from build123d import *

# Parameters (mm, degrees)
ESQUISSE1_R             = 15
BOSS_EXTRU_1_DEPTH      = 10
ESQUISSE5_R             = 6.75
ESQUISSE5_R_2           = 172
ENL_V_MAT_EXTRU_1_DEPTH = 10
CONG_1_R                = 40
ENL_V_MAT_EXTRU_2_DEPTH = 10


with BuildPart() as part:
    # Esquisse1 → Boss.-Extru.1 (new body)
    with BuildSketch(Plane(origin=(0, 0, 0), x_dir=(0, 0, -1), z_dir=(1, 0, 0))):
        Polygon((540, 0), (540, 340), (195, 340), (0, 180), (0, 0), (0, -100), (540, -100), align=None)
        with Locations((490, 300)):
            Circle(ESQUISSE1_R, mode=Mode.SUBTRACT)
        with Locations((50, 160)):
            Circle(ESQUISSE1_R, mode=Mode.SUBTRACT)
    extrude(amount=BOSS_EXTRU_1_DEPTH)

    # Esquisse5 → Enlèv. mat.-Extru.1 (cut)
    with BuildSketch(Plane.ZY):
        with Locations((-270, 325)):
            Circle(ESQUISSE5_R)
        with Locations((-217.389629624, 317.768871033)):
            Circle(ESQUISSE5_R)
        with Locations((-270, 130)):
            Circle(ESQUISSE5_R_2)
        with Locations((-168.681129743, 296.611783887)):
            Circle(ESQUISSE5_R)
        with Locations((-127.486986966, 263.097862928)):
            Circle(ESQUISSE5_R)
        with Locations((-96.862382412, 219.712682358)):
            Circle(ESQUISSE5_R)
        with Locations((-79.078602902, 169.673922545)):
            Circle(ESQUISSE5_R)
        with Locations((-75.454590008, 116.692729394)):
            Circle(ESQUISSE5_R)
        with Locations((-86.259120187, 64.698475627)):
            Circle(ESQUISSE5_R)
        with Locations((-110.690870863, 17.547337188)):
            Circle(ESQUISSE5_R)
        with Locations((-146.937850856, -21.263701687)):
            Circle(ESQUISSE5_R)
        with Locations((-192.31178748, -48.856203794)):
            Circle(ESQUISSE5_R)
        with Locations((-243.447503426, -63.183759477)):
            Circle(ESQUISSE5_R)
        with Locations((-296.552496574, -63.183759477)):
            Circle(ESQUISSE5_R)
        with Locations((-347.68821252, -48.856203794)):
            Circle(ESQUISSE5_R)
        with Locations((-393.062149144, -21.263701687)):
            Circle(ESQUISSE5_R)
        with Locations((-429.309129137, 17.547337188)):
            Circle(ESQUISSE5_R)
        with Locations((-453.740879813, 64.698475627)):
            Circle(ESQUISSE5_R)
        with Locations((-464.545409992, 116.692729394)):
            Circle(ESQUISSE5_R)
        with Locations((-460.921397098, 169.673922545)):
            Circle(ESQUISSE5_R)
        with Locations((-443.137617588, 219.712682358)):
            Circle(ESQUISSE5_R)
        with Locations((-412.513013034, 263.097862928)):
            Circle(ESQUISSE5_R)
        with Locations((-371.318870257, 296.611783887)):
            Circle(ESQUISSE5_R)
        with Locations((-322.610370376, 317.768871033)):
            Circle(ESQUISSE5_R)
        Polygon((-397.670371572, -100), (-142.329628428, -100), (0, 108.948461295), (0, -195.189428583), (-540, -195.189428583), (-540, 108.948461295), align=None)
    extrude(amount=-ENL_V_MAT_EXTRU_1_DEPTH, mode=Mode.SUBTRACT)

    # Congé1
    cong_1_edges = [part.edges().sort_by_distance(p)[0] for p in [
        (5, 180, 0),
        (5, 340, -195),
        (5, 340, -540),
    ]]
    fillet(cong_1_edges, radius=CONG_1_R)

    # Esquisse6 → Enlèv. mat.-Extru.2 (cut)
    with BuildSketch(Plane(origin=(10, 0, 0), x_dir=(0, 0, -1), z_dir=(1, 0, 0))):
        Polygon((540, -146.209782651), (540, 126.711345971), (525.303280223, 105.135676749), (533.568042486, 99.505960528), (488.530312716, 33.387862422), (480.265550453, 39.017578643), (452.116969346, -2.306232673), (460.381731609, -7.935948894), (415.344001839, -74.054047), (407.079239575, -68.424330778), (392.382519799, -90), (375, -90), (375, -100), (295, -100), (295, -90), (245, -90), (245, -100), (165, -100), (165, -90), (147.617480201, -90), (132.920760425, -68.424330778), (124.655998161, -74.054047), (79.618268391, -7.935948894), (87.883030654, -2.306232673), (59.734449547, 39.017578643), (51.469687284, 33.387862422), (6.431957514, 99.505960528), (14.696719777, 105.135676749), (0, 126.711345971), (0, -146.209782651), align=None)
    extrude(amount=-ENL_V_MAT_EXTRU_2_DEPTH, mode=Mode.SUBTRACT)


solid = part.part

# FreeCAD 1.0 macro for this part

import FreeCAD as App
import Part
import Sketcher
Q = App.Units.Quantity


def edges_at(feature, points):
    """Names of the edges that pass closest to the given points."""
    edges = feature.Shape.Edges
    near = lambda p: min(range(len(edges)), key=lambda i: edges[i].distToShape(Part.Vertex(*p))[0])
    return sorted({f"Edge{near(p) + 1}" for p in points})


def add_polygon(sketch, points):
    """Adds a closed chain of lines whose ends are joined by coincident constraints."""
    first, n = sketch.GeometryCount, len(points)
    for a, b in zip(points, points[1:] + points[:1]):
        sketch.addGeometry(Part.LineSegment(App.Vector(*a, 0), App.Vector(*b, 0)), False)
    for i in range(n):
        sketch.addConstraint(Sketcher.Constraint("Coincident", first + i, 2, first + (i + 1) % n, 1))

doc = App.newDocument("Part")
body = doc.addObject("PartDesign::Body", "Body")

sketch1 = body.newObject("Sketcher::SketchObject", "Sketch")
sketch1.AttachmentSupport = (doc.getObject("YZ_Plane"), [""])
sketch1.MapMode = "FlatFace"
add_polygon(sketch1, [(340, -540), (340, -195), (180, 0), (-100, 0), (-100, -540)])
sketch1.addGeometry(Part.Circle(App.Vector(160, -50, 0), App.Vector(0, 0, 1), 15), False)
sketch1.addGeometry(Part.Circle(App.Vector(300, -490, 0), App.Vector(0, 0, 1), 15), False)
sketch1.addConstraint(Sketcher.Constraint("Vertical", 0))
sketch1.addConstraint(Sketcher.Constraint("Horizontal", 2))
sketch1.addConstraint(Sketcher.Constraint("Vertical", 3))
sketch1.addConstraint(Sketcher.Constraint("Horizontal", 4))
sketch1.addConstraint(Sketcher.Constraint("Equal", 5, 6))
sketch1.addConstraint(Sketcher.Constraint("PointOnObject", 1, 2, -1))
sketch1.addConstraint(Sketcher.Constraint("Diameter", 5, Q("30 mm")))
sketch1.addConstraint(Sketcher.Constraint("DistanceX", 2, 2, 2, 1, Q("280 mm")))
sketch1.addConstraint(Sketcher.Constraint("DistanceX", 4, 1, 4, 2, Q("440 mm")))
sketch1.addConstraint(Sketcher.Constraint("DistanceY", 0, 1, 0, 2, Q("345 mm")))
sketch1.addConstraint(Sketcher.Constraint("DistanceY", 3, 2, 3, 1, Q("540 mm")))
sketch1.addConstraint(Sketcher.Constraint("DistanceX", -1, 1, 5, 3, Q("160 mm")))
sketch1.addConstraint(Sketcher.Constraint("DistanceY", 5, 3, -1, 1, Q("50 mm")))
sketch1.addConstraint(Sketcher.Constraint("DistanceX", -1, 1, 6, 3, Q("300 mm")))
sketch1.addConstraint(Sketcher.Constraint("DistanceY", 6, 3, -1, 1, Q("490 mm")))
sketch1.addConstraint(Sketcher.Constraint("DistanceX", -1, 1, 0, 2, Q("340 mm")))
pad1 = body.newObject("PartDesign::Pad", "Pad")
pad1.Profile = sketch1
pad1.Length = 10

sketch2 = body.newObject("Sketcher::SketchObject", "Sketch001")
sketch2.AttachmentSupport = (doc.getObject("YZ_Plane"), [""])
sketch2.MapMode = "FlatFace"
sketch2.addGeometry(Part.Circle(App.Vector(325, -270, 0), App.Vector(0, 0, 1), 6.75), False)
sketch2.addGeometry(Part.Circle(App.Vector(317.768871, -217.38963, 0), App.Vector(0, 0, 1), 6.75), False)
sketch2.addGeometry(Part.Circle(App.Vector(130, -270, 0), App.Vector(0, 0, 1), 172), False)
sketch2.addGeometry(Part.Circle(App.Vector(296.611784, -168.68113, 0), App.Vector(0, 0, 1), 6.75), False)
sketch2.addGeometry(Part.Circle(App.Vector(263.097863, -127.486987, 0), App.Vector(0, 0, 1), 6.75), False)
sketch2.addGeometry(Part.Circle(App.Vector(219.712682, -96.862382, 0), App.Vector(0, 0, 1), 6.75), False)
sketch2.addGeometry(Part.Circle(App.Vector(169.673923, -79.078603, 0), App.Vector(0, 0, 1), 6.75), False)
sketch2.addGeometry(Part.Circle(App.Vector(116.692729, -75.45459, 0), App.Vector(0, 0, 1), 6.75), False)
sketch2.addGeometry(Part.Circle(App.Vector(64.698476, -86.25912, 0), App.Vector(0, 0, 1), 6.75), False)
sketch2.addGeometry(Part.Circle(App.Vector(17.547337, -110.690871, 0), App.Vector(0, 0, 1), 6.75), False)
sketch2.addGeometry(Part.Circle(App.Vector(-21.263702, -146.937851, 0), App.Vector(0, 0, 1), 6.75), False)
sketch2.addGeometry(Part.Circle(App.Vector(-48.856204, -192.311787, 0), App.Vector(0, 0, 1), 6.75), False)
sketch2.addGeometry(Part.Circle(App.Vector(-63.183759, -243.447503, 0), App.Vector(0, 0, 1), 6.75), False)
sketch2.addGeometry(Part.Circle(App.Vector(-63.183759, -296.552497, 0), App.Vector(0, 0, 1), 6.75), False)
sketch2.addGeometry(Part.Circle(App.Vector(-48.856204, -347.688213, 0), App.Vector(0, 0, 1), 6.75), False)
sketch2.addGeometry(Part.Circle(App.Vector(-21.263702, -393.062149, 0), App.Vector(0, 0, 1), 6.75), False)
sketch2.addGeometry(Part.Circle(App.Vector(17.547337, -429.309129, 0), App.Vector(0, 0, 1), 6.75), False)
sketch2.addGeometry(Part.Circle(App.Vector(64.698476, -453.74088, 0), App.Vector(0, 0, 1), 6.75), False)
sketch2.addGeometry(Part.Circle(App.Vector(116.692729, -464.54541, 0), App.Vector(0, 0, 1), 6.75), False)
sketch2.addGeometry(Part.Circle(App.Vector(169.673923, -460.921397, 0), App.Vector(0, 0, 1), 6.75), False)
sketch2.addGeometry(Part.Circle(App.Vector(219.712682, -443.137618, 0), App.Vector(0, 0, 1), 6.75), False)
sketch2.addGeometry(Part.Circle(App.Vector(263.097863, -412.513013, 0), App.Vector(0, 0, 1), 6.75), False)
sketch2.addGeometry(Part.Circle(App.Vector(296.611784, -371.31887, 0), App.Vector(0, 0, 1), 6.75), False)
sketch2.addGeometry(Part.Circle(App.Vector(317.768871, -322.61037, 0), App.Vector(0, 0, 1), 6.75), False)
add_polygon(sketch2, [(-100, -142.329628), (-100, -397.670372), (108.948461, -540), (-195.189429, -540), (-195.189429, 0), (108.948461, 0)])
sketch2.addConstraint(Sketcher.Constraint("Vertical", 24))
sketch2.addConstraint(Sketcher.Constraint("Horizontal", 26))
sketch2.addConstraint(Sketcher.Constraint("Vertical", 27))
sketch2.addConstraint(Sketcher.Constraint("Horizontal", 28))
sketch2.addConstraint(Sketcher.Constraint("Equal", 0, 1))
sketch2.addConstraint(Sketcher.Constraint("Equal", 1, 3))
sketch2.addConstraint(Sketcher.Constraint("Equal", 3, 4))
sketch2.addConstraint(Sketcher.Constraint("Equal", 4, 5))
sketch2.addConstraint(Sketcher.Constraint("Equal", 5, 6))
sketch2.addConstraint(Sketcher.Constraint("Equal", 6, 7))
sketch2.addConstraint(Sketcher.Constraint("Equal", 7, 8))
sketch2.addConstraint(Sketcher.Constraint("Equal", 8, 9))
sketch2.addConstraint(Sketcher.Constraint("Equal", 9, 10))
sketch2.addConstraint(Sketcher.Constraint("Equal", 10, 11))
sketch2.addConstraint(Sketcher.Constraint("Equal", 11, 12))
sketch2.addConstraint(Sketcher.Constraint("Equal", 12, 13))
sketch2.addConstraint(Sketcher.Constraint("Equal", 13, 14))
sketch2.addConstraint(Sketcher.Constraint("Equal", 14, 15))
sketch2.addConstraint(Sketcher.Constraint("Equal", 15, 16))
sketch2.addConstraint(Sketcher.Constraint("Equal", 16, 17))
sketch2.addConstraint(Sketcher.Constraint("Equal", 17, 18))
sketch2.addConstraint(Sketcher.Constraint("Equal", 18, 19))
sketch2.addConstraint(Sketcher.Constraint("Equal", 19, 20))
sketch2.addConstraint(Sketcher.Constraint("Equal", 20, 21))
sketch2.addConstraint(Sketcher.Constraint("Equal", 21, 22))
sketch2.addConstraint(Sketcher.Constraint("Equal", 22, 23))
sketch2.addConstraint(Sketcher.Constraint("PointOnObject", 27, 2, -1))
sketch2.addConstraint(Sketcher.Constraint("Horizontal", 0, 3, 2, 3))
sketch2.addConstraint(Sketcher.Constraint("Vertical", 12, 3, 13, 3))
sketch2.addConstraint(Sketcher.Constraint("Vertical", 11, 3, 14, 3))
sketch2.addConstraint(Sketcher.Constraint("Vertical", 10, 3, 15, 3))
sketch2.addConstraint(Sketcher.Constraint("Vertical", 9, 3, 16, 3))
sketch2.addConstraint(Sketcher.Constraint("Vertical", 8, 3, 17, 3))
sketch2.addConstraint(Sketcher.Constraint("Vertical", 7, 3, 18, 3))
sketch2.addConstraint(Sketcher.Constraint("Vertical", 6, 3, 19, 3))
sketch2.addConstraint(Sketcher.Constraint("Vertical", 5, 3, 20, 3))
sketch2.addConstraint(Sketcher.Constraint("Vertical", 4, 3, 21, 3))
sketch2.addConstraint(Sketcher.Constraint("Vertical", 3, 3, 22, 3))
sketch2.addConstraint(Sketcher.Constraint("Vertical", 1, 3, 23, 3))
sketch2.addConstraint(Sketcher.Constraint("Vertical", 25, 2, 28, 2))
sketch2.addConstraint(Sketcher.Constraint("Equal", 25, 29))
sketch2.addConstraint(Sketcher.Constraint("Diameter", 2, Q("344 mm")))
sketch2.addConstraint(Sketcher.Constraint("Diameter", 0, Q("13.5 mm")))
sketch2.addConstraint(Sketcher.Constraint("DistanceY", 27, 1, 27, 2, Q("540 mm")))
sketch2.addConstraint(Sketcher.Constraint("DistanceX", -1, 1, 0, 3, Q("325 mm")))
sketch2.addConstraint(Sketcher.Constraint("DistanceY", 0, 3, -1, 1, Q("270 mm")))
sketch2.addConstraint(Sketcher.Constraint("DistanceX", -1, 1, 2, 3, Q("130 mm")))
sketch2.addConstraint(Sketcher.Constraint("DistanceX", 24, 2, -1, 1, Q("100 mm")))
sketch2.addConstraint(Sketcher.Constraint("DistanceX", 26, 2, 26, 1, Q("304.13789 mm")))
sketch2.addConstraint(Sketcher.Constraint("DistanceX", 10, 3, -1, 1, Q("21.263702 mm")))
sketch2.addConstraint(Sketcher.Constraint("DistanceY", 1, 3, 3, 3, Q("48.7085 mm")))
sketch2.addConstraint(Sketcher.Constraint("DistanceX", 5, 3, 3, 3, Q("76.899102 mm")))
sketch2.addConstraint(Sketcher.Constraint("DistanceY", 22, 3, 23, 3, Q("48.7085 mm")))
sketch2.addConstraint(Sketcher.Constraint("DistanceY", 24, 2, 24, 1, Q("255.340743 mm")))
sketch2.addConstraint(Sketcher.Constraint("DistanceX", -1, 1, 1, 3, Q("317.768871 mm")))
sketch2.addConstraint(Sketcher.Constraint("DistanceY", 1, 3, -1, 1, Q("217.38963 mm")))
sketch2.addConstraint(Sketcher.Constraint("DistanceX", -1, 1, 7, 3, Q("116.692729 mm")))
sketch2.addConstraint(Sketcher.Constraint("DistanceY", 7, 3, -1, 1, Q("75.45459 mm")))
sketch2.addConstraint(Sketcher.Constraint("DistanceY", 8, 3, -1, 1, Q("86.25912 mm")))
sketch2.addConstraint(Sketcher.Constraint("DistanceY", 9, 3, -1, 1, Q("110.690871 mm")))
sketch2.addConstraint(Sketcher.Constraint("DistanceY", 10, 3, -1, 1, Q("146.937851 mm")))
sketch2.addConstraint(Sketcher.Constraint("DistanceX", 12, 3, -1, 1, Q("63.183759 mm")))
sketch2.addConstraint(Sketcher.Constraint("DistanceY", 15, 3, -1, 1, Q("393.062149 mm")))
sketch2.addConstraint(Sketcher.Constraint("DistanceY", 16, 3, -1, 1, Q("429.309129 mm")))
sketch2.addConstraint(Sketcher.Constraint("DistanceY", 17, 3, -1, 1, Q("453.74088 mm")))
sketch2.addConstraint(Sketcher.Constraint("DistanceY", 18, 3, -1, 1, Q("464.54541 mm")))
sketch2.addConstraint(Sketcher.Constraint("DistanceY", 22, 3, -1, 1, Q("371.31887 mm")))
sketch2.addConstraint(Sketcher.Constraint("DistanceX", -1, 1, 25, 2, Q("108.948461 mm")))
sketch2.addConstraint(Sketcher.Constraint("DistanceX", 4, 3, 3, 3, Q("33.513921 mm")))
sketch2.addConstraint(Sketcher.Constraint("DistanceX", 4, 3, 1, 3, Q("54.671008 mm")))
sketch2.addConstraint(Sketcher.Constraint("DistanceX", 6, 3, 5, 3, Q("50.03876 mm")))
sketch2.addConstraint(Sketcher.Constraint("DistanceY", 5, 3, 6, 3, Q("17.78378 mm")))
sketch2.addConstraint(Sketcher.Constraint("DistanceX", 9, 3, 8, 3, Q("47.151138 mm")))
sketch2.addConstraint(Sketcher.Constraint("DistanceY", 9, 3, 5, 3, Q("13.828488 mm")))
sketch2.addConstraint(Sketcher.Constraint("DistanceX", 10, 3, 9, 3, Q("38.811039 mm")))
sketch2.addConstraint(Sketcher.Constraint("DistanceX", 11, 3, 9, 3, Q("66.403541 mm")))
sketch2.addConstraint(Sketcher.Constraint("DistanceY", 13, 3, 11, 3, Q("104.240709 mm")))
sketch2.addConstraint(Sketcher.Constraint("DistanceY", 14, 3, 12, 3, Q("104.240709 mm")))
sketch2.addConstraint(Sketcher.Constraint("DistanceY", 14, 3, 10, 3, Q("200.750362 mm")))
sketch2.addConstraint(Sketcher.Constraint("DistanceY", 15, 3, 11, 3, Q("200.750362 mm")))
sketch2.addConstraint(Sketcher.Constraint("DistanceY", 19, 3, 20, 3, Q("17.78378 mm")))
sketch2.addConstraint(Sketcher.Constraint("DistanceY", 4, 3, -1, 1, Q("127.486987 mm")))
sketch2.addConstraint(Sketcher.Constraint("DistanceY", 19, 3, -1, 1, Q("460.921397 mm")))
sketch2.addConstraint(Sketcher.Constraint("DistanceY", 21, 3, -1, 1, Q("412.513013 mm")))
pocket1 = body.newObject("PartDesign::Pocket", "Pocket")
pocket1.Profile = sketch2
pocket1.Length = 10
pocket1.Reversed = True
doc.recompute()

fillet = body.newObject("PartDesign::Fillet", "Fillet")
fillet.Base = (pocket1, edges_at(pocket1, [(5, 180, 0), (5, 340, -195), (5, 340, -540)]))
fillet.Radius = 40

sketch3 = body.newObject("Sketcher::SketchObject", "Sketch002")
sketch3.AttachmentSupport = (doc.getObject("YZ_Plane"), [""])
sketch3.MapMode = "FlatFace"
sketch3.AttachmentOffset = App.Placement(App.Vector(0, 0, 10), App.Rotation())
add_polygon(sketch3, [(-146.209783, -540), (126.711346, -540), (105.135677, -525.30328), (99.505961, -533.568042), (33.387862, -488.530313), (39.017579, -480.26555), (-2.306233, -452.116969), (-7.935949, -460.381732), (-74.054047, -415.344002), (-68.424331, -407.07924), (-90, -392.38252), (-90, -375), (-100, -375), (-100, -295), (-90, -295), (-90, -245), (-100, -245), (-100, -165), (-90, -165), (-90, -147.61748), (-68.424331, -132.92076), (-74.054047, -124.655998), (-7.935949, -79.618268), (-2.306233, -87.883031), (39.017579, -59.73445), (33.387862, -51.469687), (99.505961, -6.431958), (105.135677, -14.69672), (126.711346, 0), (-146.209783, 0)])
sketch3.addConstraint(Sketcher.Constraint("Horizontal", 0))
sketch3.addConstraint(Sketcher.Constraint("Vertical", 10))
sketch3.addConstraint(Sketcher.Constraint("Horizontal", 11))
sketch3.addConstraint(Sketcher.Constraint("Vertical", 12))
sketch3.addConstraint(Sketcher.Constraint("Horizontal", 13))
sketch3.addConstraint(Sketcher.Constraint("Vertical", 14))
sketch3.addConstraint(Sketcher.Constraint("Horizontal", 15))
sketch3.addConstraint(Sketcher.Constraint("Vertical", 16))
sketch3.addConstraint(Sketcher.Constraint("Horizontal", 17))
sketch3.addConstraint(Sketcher.Constraint("Vertical", 18))
sketch3.addConstraint(Sketcher.Constraint("Horizontal", 28))
sketch3.addConstraint(Sketcher.Constraint("Vertical", 29))
sketch3.addConstraint(Sketcher.Constraint("PointOnObject", 27, 2, -1))
sketch3.addConstraint(Sketcher.Constraint("Perpendicular", 1, 2))
sketch3.addConstraint(Sketcher.Constraint("Perpendicular", 2, 3))
sketch3.addConstraint(Sketcher.Constraint("Perpendicular", 3, 4))
sketch3.addConstraint(Sketcher.Constraint("Perpendicular", 4, 5))
sketch3.addConstraint(Sketcher.Constraint("Perpendicular", 5, 6))
sketch3.addConstraint(Sketcher.Constraint("Perpendicular", 6, 7))
sketch3.addConstraint(Sketcher.Constraint("Perpendicular", 7, 8))
sketch3.addConstraint(Sketcher.Constraint("Perpendicular", 8, 9))
sketch3.addConstraint(Sketcher.Constraint("Perpendicular", 19, 20))
sketch3.addConstraint(Sketcher.Constraint("Perpendicular", 20, 21))
sketch3.addConstraint(Sketcher.Constraint("Perpendicular", 21, 22))
sketch3.addConstraint(Sketcher.Constraint("Perpendicular", 22, 23))
sketch3.addConstraint(Sketcher.Constraint("Perpendicular", 23, 24))
sketch3.addConstraint(Sketcher.Constraint("Perpendicular", 24, 25))
sketch3.addConstraint(Sketcher.Constraint("Perpendicular", 25, 26))
sketch3.addConstraint(Sketcher.Constraint("Perpendicular", 26, 27))
sketch3.addConstraint(Sketcher.Constraint("Vertical", 10, 2, 13, 2))
sketch3.addConstraint(Sketcher.Constraint("Vertical", 12, 2, 15, 2))
sketch3.addConstraint(Sketcher.Constraint("Vertical", 14, 2, 17, 2))
sketch3.addConstraint(Sketcher.Constraint("Vertical", 8, 2, 19, 2))
sketch3.addConstraint(Sketcher.Constraint("Vertical", 7, 2, 20, 2))
sketch3.addConstraint(Sketcher.Constraint("Vertical", 6, 2, 21, 2))
sketch3.addConstraint(Sketcher.Constraint("Vertical", 5, 2, 22, 2))
sketch3.addConstraint(Sketcher.Constraint("Vertical", 4, 2, 23, 2))
sketch3.addConstraint(Sketcher.Constraint("Vertical", 3, 2, 24, 2))
sketch3.addConstraint(Sketcher.Constraint("Vertical", 2, 2, 25, 2))
sketch3.addConstraint(Sketcher.Constraint("Vertical", 1, 2, 26, 2))
sketch3.addConstraint(Sketcher.Constraint("Vertical", 0, 2, 27, 2))
sketch3.addConstraint(Sketcher.Constraint("Equal", 12, 16))
sketch3.addConstraint(Sketcher.Constraint("Equal", 10, 18))
sketch3.addConstraint(Sketcher.Constraint("Equal", 2, 4))
sketch3.addConstraint(Sketcher.Constraint("Equal", 4, 6))
sketch3.addConstraint(Sketcher.Constraint("Equal", 3, 7))
sketch3.addConstraint(Sketcher.Constraint("Equal", 6, 8))
sketch3.addConstraint(Sketcher.Constraint("Equal", 1, 9))
sketch3.addConstraint(Sketcher.Constraint("Equal", 9, 19))
sketch3.addConstraint(Sketcher.Constraint("DistanceX", 11, 2, 11, 1, Q("10 mm")))
sketch3.addConstraint(Sketcher.Constraint("DistanceY", 12, 1, 12, 2, Q("80 mm")))
sketch3.addConstraint(Sketcher.Constraint("DistanceY", 14, 1, 14, 2, Q("50 mm")))
sketch3.addConstraint(Sketcher.Constraint("DistanceY", 29, 2, 29, 1, Q("540 mm")))
sketch3.addConstraint(Sketcher.Constraint("Distance", 2, Q("10 mm")))
sketch3.addConstraint(Sketcher.Constraint("Distance", 3, Q("80 mm")))
sketch3.addConstraint(Sketcher.Constraint("Distance", 5, Q("50 mm")))
sketch3.addConstraint(Sketcher.Constraint("DistanceX", 9, 2, -1, 1, Q("90 mm")))
sketch3.addConstraint(Sketcher.Constraint("DistanceY", 7, 2, -1, 1, Q("415.344002 mm")))
sketch3.addConstraint(Sketcher.Constraint("DistanceX", 0, 1, 0, 2, Q("272.921129 mm")))
sketch3.addConstraint(Sketcher.Constraint("DistanceY", 10, 1, 10, 2, Q("17.38252 mm")))
pocket2 = body.newObject("PartDesign::Pocket", "Pocket001")
pocket2.Profile = sketch3
pocket2.Length = 10

doc.recompute()
